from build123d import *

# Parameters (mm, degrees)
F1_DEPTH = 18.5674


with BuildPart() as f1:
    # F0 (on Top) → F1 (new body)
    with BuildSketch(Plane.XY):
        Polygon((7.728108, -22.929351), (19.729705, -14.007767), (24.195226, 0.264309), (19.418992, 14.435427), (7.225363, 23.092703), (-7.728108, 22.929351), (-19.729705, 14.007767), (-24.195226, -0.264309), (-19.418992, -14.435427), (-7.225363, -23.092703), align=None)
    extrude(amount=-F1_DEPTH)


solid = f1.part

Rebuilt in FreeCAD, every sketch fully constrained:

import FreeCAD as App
import Part
import Sketcher

V = App.Vector
Q = App.Units.Quantity


def add_polygon(sketch, points):
    """Adds a closed chain of lines whose ends are joined by coincident constraints."""
    first, n = sketch.GeometryCount, len(points)
    for a, b in zip(points, points[1:] + points[:1]):
        sketch.addGeometry(Part.LineSegment(App.Vector(*a, 0), App.Vector(*b, 0)), False)
    for i in range(n):
        sketch.addConstraint(Sketcher.Constraint("Coincident", first + i, 2, first + (i + 1) % n, 1))

doc = App.newDocument("Part")
body = doc.addObject("PartDesign::Body", "Body")

# Sketch on XY plane
sketch1 = body.newObject("Sketcher::SketchObject", "Sketch")
sketch1.AttachmentSupport = (doc.getObject("XY_Plane"), [""])
sketch1.MapMode = "FlatFace"
add_polygon(sketch1, [(8, -23), (20, -14), (24, 0), (19, 14), (7, 23), (-8, 23), (-20, 14), (-24, 0), (-19, -14), (-7, -23)])  # lines 0-9
sketch1.addConstraint(Sketcher.Constraint("Symmetric", 0, 2, 5, 2, -1, 1))
sketch1.addConstraint(Sketcher.Constraint("Symmetric", 1, 2, 6, 2, -1, 1))
sketch1.addConstraint(Sketcher.Constraint("Symmetric", 2, 2, 7, 2, -1, 1))
sketch1.addConstraint(Sketcher.Constraint("Symmetric", 3, 2, 8, 2, -1, 1))
sketch1.addConstraint(Sketcher.Constraint("Symmetric", 4, 2, 9, 2, -1, 1))
sketch1.addConstraint(Sketcher.Constraint("Equal", 0, 1))
sketch1.addConstraint(Sketcher.Constraint("Equal", 1, 2))
sketch1.addConstraint(Sketcher.Constraint("Equal", 2, 3))
sketch1.addConstraint(Sketcher.Constraint("Equal", 3, 4))
sketch1.addConstraint(Sketcher.Constraint("DistanceX", 4, 2, 2, 2, 27.1471))
sketch1.addConstraint(Sketcher.Constraint("DistanceY", -1, 1, 1, 2, 0.264309))
sketch1.addConstraint(Sketcher.Constraint("DistanceX", -1, 1, 2, 2, 19.418992))
sketch1.addConstraint(Sketcher.Constraint("DistanceY", -1, 1, 4, 2, 22.929351))
sketch1.addConstraint(Sketcher.Constraint("DistanceX", 0, 2, 1, 2, 4.465521))
sketch1.addConstraint(Sketcher.Constraint("DistanceX", 3, 2, 2, 2, 12.193629))
pad1 = body.newObject("PartDesign::Pad", "Pad")
pad1.Profile = sketch1
pad1.Length = Q("0.731 in")
pad1.Reversed = True

doc.recompute()
